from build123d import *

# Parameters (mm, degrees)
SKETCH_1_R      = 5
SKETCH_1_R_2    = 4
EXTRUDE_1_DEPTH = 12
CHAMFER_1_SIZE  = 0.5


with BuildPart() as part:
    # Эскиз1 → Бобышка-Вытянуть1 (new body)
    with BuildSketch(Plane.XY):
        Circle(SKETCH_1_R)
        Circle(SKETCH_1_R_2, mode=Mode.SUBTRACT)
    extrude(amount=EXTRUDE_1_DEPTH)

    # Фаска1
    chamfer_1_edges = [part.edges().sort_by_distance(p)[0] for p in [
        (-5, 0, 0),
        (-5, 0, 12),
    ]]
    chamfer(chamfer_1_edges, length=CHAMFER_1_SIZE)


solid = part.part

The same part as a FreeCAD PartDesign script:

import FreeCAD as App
import Part
import Sketcher

V = App.Vector
Q = App.Units.Quantity


def edges_at(feature, points):
    """Names of the edges that pass closest to the given points."""
    edges = feature.Shape.Edges
    near = lambda p: min(range(len(edges)), key=lambda i: edges[i].distToShape(Part.Vertex(*p))[0])
    return sorted({f"Edge{near(p) + 1}" for p in points})

doc = App.newDocument("Part")
params = doc.addObject("Spreadsheet::Sheet", "Params")
for row, (alias, value) in enumerate([
    ("sketch1_diameter", "10 mm"),
    ("sketch1_diameter2", "8 mm"),
    ("pad1_length", "12 mm"),
    ("chamfer_size", "0.5 mm"),
], start=1):
    params.set(f"A{row}", alias)
    params.set(f"B{row}", "=" + value)
    params.setAlias(f"B{row}", alias)

body = doc.addObject("PartDesign::Body", "Body")

# Sketch on XY plane
sketch1 = doc.addObject("Sketcher::SketchObject", "Sketch")
body.addObject(sketch1)
sketch1.AttachmentSupport = (doc.XY_Plane, [""])
sketch1.MapMode = "FlatFace"
sketch1.addGeometry(Part.Circle(V(0, 0, 0), V(0, 0, 1), 5), False)
sketch1.addGeometry(Part.Circle(V(0, 0, 0), V(0, 0, 1), 4), False)
sketch1.addConstraint(Sketcher.Constraint("Coincident", 0, 3, -1, 1))
sketch1.addConstraint(Sketcher.Constraint("Coincident", 1, 3, -1, 1))
sketch1.addConstraint(Sketcher.Constraint("Diameter", 0, Q("10 mm")))
sketch1.addConstraint(Sketcher.Constraint("Diameter", 1, Q("8 mm")))
sketch1.setExpression("Constraints[2]", "Params.sketch1_diameter")
sketch1.setExpression("Constraints[3]", "Params.sketch1_diameter2")
pad1 = doc.addObject("PartDesign::Pad", "Pad")
body.addObject(pad1)
pad1.Profile = sketch1
pad1.setExpression("Length", "Params.pad1_length")
doc.recompute()

chamfer = doc.addObject("PartDesign::Chamfer", "Chamfer")
body.addObject(chamfer)
chamfer.Base = (pad1, edges_at(pad1, [(-5, 0, 0), (-5, 0, 12)]))
chamfer.setExpression("Size", "Params.chamfer_size")

doc.recompute()
